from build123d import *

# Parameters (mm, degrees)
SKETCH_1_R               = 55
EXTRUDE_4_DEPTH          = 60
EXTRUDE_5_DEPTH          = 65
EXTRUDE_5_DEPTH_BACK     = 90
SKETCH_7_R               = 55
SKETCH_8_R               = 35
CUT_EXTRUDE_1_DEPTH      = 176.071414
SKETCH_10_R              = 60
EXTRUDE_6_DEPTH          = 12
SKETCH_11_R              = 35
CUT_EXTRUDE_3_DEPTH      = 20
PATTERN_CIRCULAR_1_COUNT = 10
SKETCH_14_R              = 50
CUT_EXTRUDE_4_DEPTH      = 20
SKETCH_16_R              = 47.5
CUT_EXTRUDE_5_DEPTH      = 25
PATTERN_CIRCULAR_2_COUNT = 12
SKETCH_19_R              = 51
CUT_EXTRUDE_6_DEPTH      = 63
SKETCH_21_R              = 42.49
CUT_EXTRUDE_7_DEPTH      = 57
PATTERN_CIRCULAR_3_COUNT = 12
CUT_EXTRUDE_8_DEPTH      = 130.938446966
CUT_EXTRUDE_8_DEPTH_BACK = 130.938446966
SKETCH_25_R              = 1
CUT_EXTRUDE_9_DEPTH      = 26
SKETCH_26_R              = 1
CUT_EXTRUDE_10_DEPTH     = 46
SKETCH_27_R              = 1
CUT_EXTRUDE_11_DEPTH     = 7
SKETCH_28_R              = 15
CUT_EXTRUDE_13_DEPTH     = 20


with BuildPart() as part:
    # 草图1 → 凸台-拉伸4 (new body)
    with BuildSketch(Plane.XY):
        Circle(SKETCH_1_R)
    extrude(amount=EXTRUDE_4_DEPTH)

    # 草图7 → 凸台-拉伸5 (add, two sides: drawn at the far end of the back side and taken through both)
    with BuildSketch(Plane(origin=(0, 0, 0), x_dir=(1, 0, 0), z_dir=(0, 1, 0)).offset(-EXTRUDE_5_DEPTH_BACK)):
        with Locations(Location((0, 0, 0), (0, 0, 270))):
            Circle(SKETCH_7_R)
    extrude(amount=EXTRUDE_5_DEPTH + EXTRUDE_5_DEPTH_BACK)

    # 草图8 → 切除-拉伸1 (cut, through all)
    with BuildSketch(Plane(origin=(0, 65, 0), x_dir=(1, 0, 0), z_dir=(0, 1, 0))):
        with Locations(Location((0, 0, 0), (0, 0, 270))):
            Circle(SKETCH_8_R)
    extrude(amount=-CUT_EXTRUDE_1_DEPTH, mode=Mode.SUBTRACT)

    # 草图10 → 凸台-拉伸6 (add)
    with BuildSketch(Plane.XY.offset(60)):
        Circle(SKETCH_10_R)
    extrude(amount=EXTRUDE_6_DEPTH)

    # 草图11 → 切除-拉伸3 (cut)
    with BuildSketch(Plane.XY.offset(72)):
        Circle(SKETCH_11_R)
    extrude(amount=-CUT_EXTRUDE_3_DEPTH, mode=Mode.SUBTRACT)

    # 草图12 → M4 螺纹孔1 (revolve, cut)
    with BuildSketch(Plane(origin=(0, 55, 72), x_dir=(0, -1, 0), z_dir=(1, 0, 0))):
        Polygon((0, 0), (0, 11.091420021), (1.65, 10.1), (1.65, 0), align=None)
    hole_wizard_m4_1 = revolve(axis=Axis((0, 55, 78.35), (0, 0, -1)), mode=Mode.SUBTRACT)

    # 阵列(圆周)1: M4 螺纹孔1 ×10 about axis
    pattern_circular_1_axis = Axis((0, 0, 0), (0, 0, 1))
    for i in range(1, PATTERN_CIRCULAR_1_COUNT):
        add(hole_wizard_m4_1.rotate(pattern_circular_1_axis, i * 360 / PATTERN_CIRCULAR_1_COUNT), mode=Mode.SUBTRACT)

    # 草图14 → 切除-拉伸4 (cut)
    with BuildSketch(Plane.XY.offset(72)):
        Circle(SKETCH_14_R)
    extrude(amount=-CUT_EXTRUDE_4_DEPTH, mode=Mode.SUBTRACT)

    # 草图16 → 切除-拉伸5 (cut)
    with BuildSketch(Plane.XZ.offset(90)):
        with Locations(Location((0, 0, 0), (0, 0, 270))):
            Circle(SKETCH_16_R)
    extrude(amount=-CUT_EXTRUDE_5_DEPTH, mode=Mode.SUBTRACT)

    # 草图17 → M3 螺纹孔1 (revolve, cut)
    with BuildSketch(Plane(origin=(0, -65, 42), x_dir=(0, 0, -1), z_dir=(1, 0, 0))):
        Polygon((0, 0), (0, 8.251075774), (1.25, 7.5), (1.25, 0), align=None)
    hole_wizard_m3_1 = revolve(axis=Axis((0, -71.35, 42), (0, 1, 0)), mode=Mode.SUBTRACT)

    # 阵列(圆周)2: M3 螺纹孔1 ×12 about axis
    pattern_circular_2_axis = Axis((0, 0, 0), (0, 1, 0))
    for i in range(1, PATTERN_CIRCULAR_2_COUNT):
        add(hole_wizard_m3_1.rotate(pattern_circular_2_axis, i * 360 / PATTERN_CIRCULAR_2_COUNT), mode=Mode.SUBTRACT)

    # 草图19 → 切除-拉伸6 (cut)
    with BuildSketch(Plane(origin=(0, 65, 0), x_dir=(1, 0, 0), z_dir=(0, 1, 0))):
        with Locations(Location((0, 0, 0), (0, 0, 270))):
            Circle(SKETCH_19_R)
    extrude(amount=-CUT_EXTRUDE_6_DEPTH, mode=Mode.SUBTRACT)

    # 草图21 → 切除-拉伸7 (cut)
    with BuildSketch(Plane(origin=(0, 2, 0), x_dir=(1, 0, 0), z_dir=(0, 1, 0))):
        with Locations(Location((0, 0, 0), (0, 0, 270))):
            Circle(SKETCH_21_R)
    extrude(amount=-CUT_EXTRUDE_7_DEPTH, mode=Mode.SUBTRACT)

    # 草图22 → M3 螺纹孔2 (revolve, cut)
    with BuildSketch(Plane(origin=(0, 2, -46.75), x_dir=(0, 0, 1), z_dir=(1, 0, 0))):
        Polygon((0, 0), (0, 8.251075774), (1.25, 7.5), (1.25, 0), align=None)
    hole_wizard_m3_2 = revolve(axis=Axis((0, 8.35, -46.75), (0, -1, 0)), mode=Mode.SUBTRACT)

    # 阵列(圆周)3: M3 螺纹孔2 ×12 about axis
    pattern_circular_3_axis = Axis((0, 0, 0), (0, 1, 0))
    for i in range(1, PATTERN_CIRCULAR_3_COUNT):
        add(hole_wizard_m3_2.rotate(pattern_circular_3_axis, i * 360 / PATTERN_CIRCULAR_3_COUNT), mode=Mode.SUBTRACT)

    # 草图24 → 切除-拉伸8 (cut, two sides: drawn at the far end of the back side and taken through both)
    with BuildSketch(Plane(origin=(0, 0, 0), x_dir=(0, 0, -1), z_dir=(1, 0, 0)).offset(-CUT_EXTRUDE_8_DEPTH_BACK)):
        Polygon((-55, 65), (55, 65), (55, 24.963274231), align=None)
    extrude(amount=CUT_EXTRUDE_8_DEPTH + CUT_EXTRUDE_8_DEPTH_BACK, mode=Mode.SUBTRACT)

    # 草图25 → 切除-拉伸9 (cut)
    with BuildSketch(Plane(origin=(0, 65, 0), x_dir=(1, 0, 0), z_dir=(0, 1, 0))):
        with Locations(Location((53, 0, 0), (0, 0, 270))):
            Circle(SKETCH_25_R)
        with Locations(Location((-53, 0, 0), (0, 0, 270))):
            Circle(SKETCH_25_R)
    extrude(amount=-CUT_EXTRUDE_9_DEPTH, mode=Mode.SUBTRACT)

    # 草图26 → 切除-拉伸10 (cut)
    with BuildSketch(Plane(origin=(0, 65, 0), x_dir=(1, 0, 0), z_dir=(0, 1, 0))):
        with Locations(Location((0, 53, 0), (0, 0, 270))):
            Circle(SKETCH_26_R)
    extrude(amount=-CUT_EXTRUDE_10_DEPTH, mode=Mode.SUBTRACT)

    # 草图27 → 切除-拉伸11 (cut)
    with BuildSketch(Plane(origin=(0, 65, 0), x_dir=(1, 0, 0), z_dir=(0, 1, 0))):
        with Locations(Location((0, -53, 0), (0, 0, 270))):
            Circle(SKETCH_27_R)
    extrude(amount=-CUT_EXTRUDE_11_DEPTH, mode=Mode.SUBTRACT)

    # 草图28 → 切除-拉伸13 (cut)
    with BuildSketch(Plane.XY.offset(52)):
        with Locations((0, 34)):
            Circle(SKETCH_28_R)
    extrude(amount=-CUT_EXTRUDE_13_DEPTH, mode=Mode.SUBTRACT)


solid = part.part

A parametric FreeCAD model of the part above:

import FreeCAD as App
import Part
import Sketcher
Q = App.Units.Quantity


def add_polygon(sketch, points):
    """Adds a closed chain of lines whose ends are joined by coincident constraints."""
    first, n = sketch.GeometryCount, len(points)
    for a, b in zip(points, points[1:] + points[:1]):
        sketch.addGeometry(Part.LineSegment(App.Vector(*a, 0), App.Vector(*b, 0)), False)
    for i in range(n):
        sketch.addConstraint(Sketcher.Constraint("Coincident", first + i, 2, first + (i + 1) % n, 1))

doc = App.newDocument("Part")
params = doc.addObject("Spreadsheet::Sheet", "Params")
for row, (alias, value) in enumerate([
    ("sketch1_diameter", "110 mm"),
    ("pad1_length", "60 mm"),
    ("sketch2_diameter", "110 mm"),
    ("pad2_length", "65 mm"),
    ("pad2_length2", "90 mm"),
    ("sketch3_diameter", "70 mm"),
    ("sketch4_diameter", "120 mm"),
    ("pad3_length", "12 mm"),
    ("sketch5_diameter", "70 mm"),
    ("pocket2_length", "20 mm"),
    ("sketch6_height", "10.1 mm"),
    ("sketch6_width", "1.65 mm"),
    ("groove_angle", "360 deg"),
    ("sketch7_diameter", "100 mm"),
    ("pocket3_length", "20 mm"),
    ("sketch8_diameter", "95 mm"),
    ("pocket4_length", "25 mm"),
    ("sketch9_width", "7.5 mm"),
    ("sketch9_height", "1.25 mm"),
    ("groove2_angle", "360 deg"),
    ("sketch10_diameter", "102 mm"),
    ("pocket5_length", "63 mm"),
    ("sketch11_diameter", "84.98 mm"),
    ("pocket6_length", "57 mm"),
    ("sketch12_width", "7.5 mm"),
    ("sketch12_height", "1.25 mm"),
    ("groove3_angle", "360 deg"),
    ("sketch13_height", "110 mm"),
    ("sketch14_diameter", "2 mm"),
    ("pocket8_length", "26 mm"),
    ("sketch15_diameter", "2 mm"),
    ("pocket9_length", "46 mm"),
    ("sketch16_diameter", "2 mm"),
    ("pocket10_length", "7 mm"),
    ("sketch17_diameter", "30 mm"),
    ("pocket11_length", "20 mm"),
], start=1):
    params.set(f"A{row}", alias)
    params.set(f"B{row}", "=" + value)
    params.setAlias(f"B{row}", alias)

body = doc.addObject("PartDesign::Body", "Body")

sketch1 = body.newObject("Sketcher::SketchObject", "Sketch")
sketch1.AttachmentSupport = (doc.getObject("XY_Plane"), [""])
sketch1.MapMode = "FlatFace"
sketch1.addGeometry(Part.Circle(App.Vector(0, 0, 0), App.Vector(0, 0, 1), 55), False)
sketch1.addConstraint(Sketcher.Constraint("Coincident", 0, 3, -1, 1))
sketch1.addConstraint(Sketcher.Constraint("Diameter", 0, 110.0))
sketch1.setExpression("Constraints[1]", "Params.sketch1_diameter")
pad1 = body.newObject("PartDesign::Pad", "Pad")
pad1.Profile = sketch1
pad1.setExpression("Length", "Params.pad1_length")

sketch2 = body.newObject("Sketcher::SketchObject", "Sketch001")
sketch2.AttachmentSupport = (doc.getObject("XZ_Plane"), [""])
sketch2.MapMode = "FlatFace"
sketch2.addGeometry(Part.Circle(App.Vector(0, 0, 0), App.Vector(0, 0, 1), 55), False)
sketch2.addConstraint(Sketcher.Constraint("Coincident", 0, 3, -1, 1))
sketch2.addConstraint(Sketcher.Constraint("Diameter", 0, 110.0))
sketch2.setExpression("Constraints[1]", "Params.sketch2_diameter")
pad2 = body.newObject("PartDesign::Pad", "Pad001")
pad2.Profile = sketch2
pad2.Type = "TwoLengths"
pad2.setExpression("Length", "Params.pad2_length")
pad2.setExpression("Length2", "Params.pad2_length2")
pad2.Reversed = True

sketch3 = body.newObject("Sketcher::SketchObject", "Sketch002")
sketch3.AttachmentSupport = (doc.getObject("XZ_Plane"), [""])
sketch3.MapMode = "FlatFace"
sketch3.AttachmentOffset = App.Placement(App.Vector(0, 0, -65), App.Rotation())
sketch3.addGeometry(Part.Circle(App.Vector(0, 0, 0), App.Vector(0, 0, 1), 35), False)
sketch3.addConstraint(Sketcher.Constraint("Coincident", 0, 3, -1, 1))
sketch3.addConstraint(Sketcher.Constraint("Diameter", 0, 70.0))
sketch3.setExpression("Constraints[1]", "Params.sketch3_diameter")
pocket1 = body.newObject("PartDesign::Pocket", "Pocket")
pocket1.Profile = sketch3
pocket1.Type = "ThroughAll"
pocket1.Reversed = True

sketch4 = body.newObject("Sketcher::SketchObject", "Sketch003")
sketch4.AttachmentSupport = (doc.getObject("XY_Plane"), [""])
sketch4.MapMode = "FlatFace"
sketch4.AttachmentOffset = App.Placement(App.Vector(0, 0, 60), App.Rotation())
sketch4.addGeometry(Part.Circle(App.Vector(0, 0, 0), App.Vector(0, 0, 1), 60), False)
sketch4.addConstraint(Sketcher.Constraint("Coincident", 0, 3, -1, 1))
sketch4.addConstraint(Sketcher.Constraint("Diameter", 0, 120.0))
sketch4.setExpression("Constraints[1]", "Params.sketch4_diameter")
pad3 = body.newObject("PartDesign::Pad", "Pad002")
pad3.Profile = sketch4
pad3.setExpression("Length", "Params.pad3_length")

sketch5 = body.newObject("Sketcher::SketchObject", "Sketch004")
sketch5.AttachmentSupport = (doc.getObject("XY_Plane"), [""])
sketch5.MapMode = "FlatFace"
sketch5.AttachmentOffset = App.Placement(App.Vector(0, 0, 72), App.Rotation())
sketch5.addGeometry(Part.Circle(App.Vector(0, 0, 0), App.Vector(0, 0, 1), 35), False)
sketch5.addConstraint(Sketcher.Constraint("Coincident", 0, 3, -1, 1))
sketch5.addConstraint(Sketcher.Constraint("Diameter", 0, 70.0))
sketch5.setExpression("Constraints[1]", "Params.sketch5_diameter")
pocket2 = body.newObject("PartDesign::Pocket", "Pocket001")
pocket2.Profile = sketch5
pocket2.setExpression("Length", "Params.pocket2_length")

sketch6 = body.newObject("Sketcher::SketchObject", "Sketch005")
sketch6.AttachmentSupport = (doc.getObject("YZ_Plane"), [""])
sketch6.MapMode = "FlatFace"
add_polygon(sketch6, [(55, 60.9), (55, 72), (53.4, 72), (53.4, 61.9)])
sketch6.addGeometry(Part.LineSegment(App.Vector(55, 72, 0), App.Vector(55, 60.9, 0)), True)
sketch6.addConstraint(Sketcher.Constraint("Vertical", 0))
sketch6.addConstraint(Sketcher.Constraint("Horizontal", 1))
sketch6.addConstraint(Sketcher.Constraint("Vertical", 2))
sketch6.addConstraint(Sketcher.Constraint("Vertical", 4))
sketch6.addConstraint(Sketcher.Constraint("Coincident", 4, 1, 0, 2))
sketch6.addConstraint(Sketcher.Constraint("Equal", 0, 4))
sketch6.addConstraint(Sketcher.Constraint("Angle", 3, Q("-31 deg")))
sketch6.addConstraint(Sketcher.Constraint("DistanceY", 2, 2, 2, 1, 10.1))
sketch6.addConstraint(Sketcher.Constraint("DistanceX", -1, 1, 0, 2, 55.0))
sketch6.addConstraint(Sketcher.Constraint("DistanceY", -1, 1, 0, 2, 72.0))
sketch6.addConstraint(Sketcher.Constraint("DistanceX", 1, 2, 1, 1, 1.65))
sketch6.setExpression("Constraints[11]", "Params.sketch6_height")
sketch6.setExpression("Constraints[14]", "Params.sketch6_width")
groove = body.newObject("PartDesign::Groove", "Groove")
groove.Profile = sketch6
groove.ReferenceAxis = (sketch6, ["Axis0"])
groove.setExpression("Angle", "Params.groove_angle")
doc.recompute()

polarpattern = body.newObject("PartDesign::PolarPattern", "PolarPattern")
polarpattern.Originals = [groove]
polarpattern.Axis = (doc.getObject("Z_Axis"), [""])
polarpattern.Angle = 360
polarpattern.Occurrences = 10
body.Tip = polarpattern

sketch7 = body.newObject("Sketcher::SketchObject", "Sketch006")
sketch7.AttachmentSupport = (doc.getObject("XY_Plane"), [""])
sketch7.MapMode = "FlatFace"
sketch7.AttachmentOffset = App.Placement(App.Vector(0, 0, 72), App.Rotation())
sketch7.addGeometry(Part.Circle(App.Vector(0, 0, 0), App.Vector(0, 0, 1), 50), False)
sketch7.addConstraint(Sketcher.Constraint("Coincident", 0, 3, -1, 1))
sketch7.addConstraint(Sketcher.Constraint("Diameter", 0, 100.0))
sketch7.setExpression("Constraints[1]", "Params.sketch7_diameter")
pocket3 = body.newObject("PartDesign::Pocket", "Pocket002")
pocket3.Profile = sketch7
pocket3.setExpression("Length", "Params.pocket3_length")

sketch8 = body.newObject("Sketcher::SketchObject", "Sketch007")
sketch8.AttachmentSupport = (doc.getObject("XZ_Plane"), [""])
sketch8.MapMode = "FlatFace"
sketch8.AttachmentOffset = App.Placement(App.Vector(0, 0, 90), App.Rotation())
sketch8.addGeometry(Part.Circle(App.Vector(0, 0, 0), App.Vector(0, 0, 1), 48), False)
sketch8.addConstraint(Sketcher.Constraint("Coincident", 0, 3, -1, 1))
sketch8.addConstraint(Sketcher.Constraint("Diameter", 0, 95.0))
sketch8.setExpression("Constraints[1]", "Params.sketch8_diameter")
pocket4 = body.newObject("PartDesign::Pocket", "Pocket003")
pocket4.Profile = sketch8
pocket4.setExpression("Length", "Params.pocket4_length")

sketch9 = body.newObject("Sketcher::SketchObject", "Sketch008")
sketch9.AttachmentSupport = (doc.getObject("YZ_Plane"), [""])
sketch9.MapMode = "FlatFace"
add_polygon(sketch9, [(-56.7, 42), (-65, 42), (-65, 40.8), (-57.5, 40.8)])
sketch9.addGeometry(Part.LineSegment(App.Vector(-65, 42, 0), App.Vector(-56.7, 42, 0)), True)
sketch9.addConstraint(Sketcher.Constraint("Horizontal", 0))
sketch9.addConstraint(Sketcher.Constraint("Vertical", 1))
sketch9.addConstraint(Sketcher.Constraint("Horizontal", 2))
sketch9.addConstraint(Sketcher.Constraint("Horizontal", 4))
sketch9.addConstraint(Sketcher.Constraint("Coincident", 4, 1, 0, 2))
sketch9.addConstraint(Sketcher.Constraint("Equal", 0, 4))
sketch9.addConstraint(Sketcher.Constraint("Angle", 3, Q("59 deg")))
sketch9.addConstraint(Sketcher.Constraint("DistanceX", 2, 1, 2, 2, 7.5))
sketch9.addConstraint(Sketcher.Constraint("DistanceX", 0, 2, -1, 1, 65.0))
sketch9.addConstraint(Sketcher.Constraint("DistanceY", -1, 1, 0, 2, 42.0))
sketch9.addConstraint(Sketcher.Constraint("DistanceY", 1, 2, 1, 1, 1.25))
sketch9.setExpression("Constraints[11]", "Params.sketch9_width")
sketch9.setExpression("Constraints[14]", "Params.sketch9_height")
groove2 = body.newObject("PartDesign::Groove", "Groove001")
groove2.Profile = sketch9
groove2.ReferenceAxis = (sketch9, ["Axis0"])
groove2.setExpression("Angle", "Params.groove2_angle")
doc.recompute()

polarpattern2 = body.newObject("PartDesign::PolarPattern", "PolarPattern001")
polarpattern2.Originals = [groove2]
polarpattern2.Axis = (doc.getObject("Y_Axis"), [""])
polarpattern2.Angle = 360
polarpattern2.Occurrences = 12
body.Tip = polarpattern2

sketch10 = body.newObject("Sketcher::SketchObject", "Sketch009")
sketch10.AttachmentSupport = (doc.getObject("XZ_Plane"), [""])
sketch10.MapMode = "FlatFace"
sketch10.AttachmentOffset = App.Placement(App.Vector(0, 0, -65), App.Rotation())
sketch10.addGeometry(Part.Circle(App.Vector(0, 0, 0), App.Vector(0, 0, 1), 51), False)
sketch10.addConstraint(Sketcher.Constraint("Coincident", 0, 3, -1, 1))
sketch10.addConstraint(Sketcher.Constraint("Diameter", 0, 102.0))
sketch10.setExpression("Constraints[1]", "Params.sketch10_diameter")
pocket5 = body.newObject("PartDesign::Pocket", "Pocket004")
pocket5.Profile = sketch10
pocket5.setExpression("Length", "Params.pocket5_length")
pocket5.Reversed = True

sketch11 = body.newObject("Sketcher::SketchObject", "Sketch010")
sketch11.AttachmentSupport = (doc.getObject("XZ_Plane"), [""])
sketch11.MapMode = "FlatFace"
sketch11.AttachmentOffset = App.Placement(App.Vector(0, 0, -2), App.Rotation())
sketch11.addGeometry(Part.Circle(App.Vector(0, 0, 0), App.Vector(0, 0, 1), 42), False)
sketch11.addConstraint(Sketcher.Constraint("Coincident", 0, 3, -1, 1))
sketch11.addConstraint(Sketcher.Constraint("Diameter", 0, 84.98))
sketch11.setExpression("Constraints[1]", "Params.sketch11_diameter")
pocket6 = body.newObject("PartDesign::Pocket", "Pocket005")
pocket6.Profile = sketch11
pocket6.setExpression("Length", "Params.pocket6_length")
pocket6.Reversed = True

sketch12 = body.newObject("Sketcher::SketchObject", "Sketch011")
sketch12.AttachmentSupport = (doc.getObject("YZ_Plane"), [""])
sketch12.MapMode = "FlatFace"
add_polygon(sketch12, [(-6.3, -46.8), (2, -46.8), (2, -45.5), (-5.5, -45.5)])
sketch12.addGeometry(Part.LineSegment(App.Vector(2, -46.8, 0), App.Vector(-6.3, -46.8, 0)), True)
sketch12.addConstraint(Sketcher.Constraint("Horizontal", 0))
sketch12.addConstraint(Sketcher.Constraint("Vertical", 1))
sketch12.addConstraint(Sketcher.Constraint("Horizontal", 2))
sketch12.addConstraint(Sketcher.Constraint("Horizontal", 4))
sketch12.addConstraint(Sketcher.Constraint("Coincident", 4, 1, 0, 2))
sketch12.addConstraint(Sketcher.Constraint("Equal", 0, 4))
sketch12.addConstraint(Sketcher.Constraint("Angle", 3, Q("-121 deg")))
sketch12.addConstraint(Sketcher.Constraint("DistanceX", 2, 2, 2, 1, 7.5))
sketch12.addConstraint(Sketcher.Constraint("DistanceX", -1, 1, 0, 2, 2.0))
sketch12.addConstraint(Sketcher.Constraint("DistanceY", 1, 1, 1, 2, 1.25))
sketch12.addConstraint(Sketcher.Constraint("DistanceY", 1, 2, -1, 1, 45.5))
sketch12.setExpression("Constraints[11]", "Params.sketch12_width")
sketch12.setExpression("Constraints[13]", "Params.sketch12_height")
groove3 = body.newObject("PartDesign::Groove", "Groove002")
groove3.Profile = sketch12
groove3.ReferenceAxis = (sketch12, ["Axis0"])
groove3.setExpression("Angle", "Params.groove3_angle")
doc.recompute()

polarpattern3 = body.newObject("PartDesign::PolarPattern", "PolarPattern002")
polarpattern3.Originals = [groove3]
polarpattern3.Axis = (doc.getObject("Y_Axis"), [""])
polarpattern3.Angle = 360
polarpattern3.Occurrences = 12
body.Tip = polarpattern3

sketch13 = body.newObject("Sketcher::SketchObject", "Sketch012")
sketch13.AttachmentSupport = (doc.getObject("YZ_Plane"), [""])
sketch13.MapMode = "FlatFace"
add_polygon(sketch13, [(65, -55), (65, 55), (25, -55)])
sketch13.addConstraint(Sketcher.Constraint("Vertical", 0))
sketch13.addConstraint(Sketcher.Constraint("Horizontal", 2))
sketch13.addConstraint(Sketcher.Constraint("DistanceY", 0, 1, 0, 2, 110.0))
sketch13.addConstraint(Sketcher.Constraint("Angle", 1, Q("-110 deg")))
sketch13.addConstraint(Sketcher.Constraint("DistanceX", -1, 1, 0, 2, 65.0))
sketch13.addConstraint(Sketcher.Constraint("DistanceY", -1, 1, 0, 2, 55.0))
sketch13.setExpression("Constraints[5]", "Params.sketch13_height")
pocket7 = body.newObject("PartDesign::Pocket", "Pocket006")
pocket7.Profile = sketch13
pocket7.Type = "ThroughAll"
pocket7.Midplane = True

sketch14 = body.newObject("Sketcher::SketchObject", "Sketch013")
sketch14.AttachmentSupport = (doc.getObject("XZ_Plane"), [""])
sketch14.MapMode = "FlatFace"
sketch14.AttachmentOffset = App.Placement(App.Vector(0, 0, -65), App.Rotation())
sketch14.addGeometry(Part.Circle(App.Vector(53, 0, 0), App.Vector(0, 0, 1), 1), False)
sketch14.addGeometry(Part.Circle(App.Vector(-53, 0, 0), App.Vector(0, 0, 1), 1), False)
sketch14.addConstraint(Sketcher.Constraint("Equal", 0, 1))
sketch14.addConstraint(Sketcher.Constraint("Symmetric", 0, 3, 1, 3, -1, 1))
sketch14.addConstraint(Sketcher.Constraint("PointOnObject", 0, 3, -1))
sketch14.addConstraint(Sketcher.Constraint("Diameter", 0, 2.0))
sketch14.addConstraint(Sketcher.Constraint("DistanceX", -1, 1, 0, 3, 53.0))
sketch14.setExpression("Constraints[3]", "Params.sketch14_diameter")
pocket8 = body.newObject("PartDesign::Pocket", "Pocket007")
pocket8.Profile = sketch14
pocket8.setExpression("Length", "Params.pocket8_length")
pocket8.Reversed = True

sketch15 = body.newObject("Sketcher::SketchObject", "Sketch014")
sketch15.AttachmentSupport = (doc.getObject("XZ_Plane"), [""])
sketch15.MapMode = "FlatFace"
sketch15.AttachmentOffset = App.Placement(App.Vector(0, 0, -65), App.Rotation())
sketch15.addGeometry(Part.Circle(App.Vector(0, -53, 0), App.Vector(0, 0, 1), 1), False)
sketch15.addConstraint(Sketcher.Constraint("PointOnObject", 0, 3, -2))
sketch15.addConstraint(Sketcher.Constraint("Diameter", 0, 2.0))
sketch15.addConstraint(Sketcher.Constraint("DistanceY", 0, 3, -1, 1, 53.0))
sketch15.setExpression("Constraints[1]", "Params.sketch15_diameter")
pocket9 = body.newObject("PartDesign::Pocket", "Pocket008")
pocket9.Profile = sketch15
pocket9.setExpression("Length", "Params.pocket9_length")
pocket9.Reversed = True

sketch16 = body.newObject("Sketcher::SketchObject", "Sketch015")
sketch16.AttachmentSupport = (doc.getObject("XZ_Plane"), [""])
sketch16.MapMode = "FlatFace"
sketch16.AttachmentOffset = App.Placement(App.Vector(0, 0, -65), App.Rotation())
sketch16.addGeometry(Part.Circle(App.Vector(0, 53, 0), App.Vector(0, 0, 1), 1), False)
sketch16.addConstraint(Sketcher.Constraint("PointOnObject", 0, 3, -2))
sketch16.addConstraint(Sketcher.Constraint("Diameter", 0, 2.0))
sketch16.addConstraint(Sketcher.Constraint("DistanceY", -1, 1, 0, 3, 53.0))
sketch16.setExpression("Constraints[1]", "Params.sketch16_diameter")
pocket10 = body.newObject("PartDesign::Pocket", "Pocket009")
pocket10.Profile = sketch16
pocket10.setExpression("Length", "Params.pocket10_length")
pocket10.Reversed = True

sketch17 = body.newObject("Sketcher::SketchObject", "Sketch016")
sketch17.AttachmentSupport = (doc.getObject("XY_Plane"), [""])
sketch17.MapMode = "FlatFace"
sketch17.AttachmentOffset = App.Placement(App.Vector(0, 0, 52), App.Rotation())
sketch17.addGeometry(Part.Circle(App.Vector(0, 34, 0), App.Vector(0, 0, 1), 15), False)
sketch17.addConstraint(Sketcher.Constraint("PointOnObject", 0, 3, -2))
sketch17.addConstraint(Sketcher.Constraint("Diameter", 0, 30.0))
sketch17.addConstraint(Sketcher.Constraint("DistanceY", -1, 1, 0, 3, 34.0))
sketch17.setExpression("Constraints[1]", "Params.sketch17_diameter")
pocket11 = body.newObject("PartDesign::Pocket", "Pocket010")
pocket11.Profile = sketch17
pocket11.setExpression("Length", "Params.pocket11_length")

doc.recompute()
